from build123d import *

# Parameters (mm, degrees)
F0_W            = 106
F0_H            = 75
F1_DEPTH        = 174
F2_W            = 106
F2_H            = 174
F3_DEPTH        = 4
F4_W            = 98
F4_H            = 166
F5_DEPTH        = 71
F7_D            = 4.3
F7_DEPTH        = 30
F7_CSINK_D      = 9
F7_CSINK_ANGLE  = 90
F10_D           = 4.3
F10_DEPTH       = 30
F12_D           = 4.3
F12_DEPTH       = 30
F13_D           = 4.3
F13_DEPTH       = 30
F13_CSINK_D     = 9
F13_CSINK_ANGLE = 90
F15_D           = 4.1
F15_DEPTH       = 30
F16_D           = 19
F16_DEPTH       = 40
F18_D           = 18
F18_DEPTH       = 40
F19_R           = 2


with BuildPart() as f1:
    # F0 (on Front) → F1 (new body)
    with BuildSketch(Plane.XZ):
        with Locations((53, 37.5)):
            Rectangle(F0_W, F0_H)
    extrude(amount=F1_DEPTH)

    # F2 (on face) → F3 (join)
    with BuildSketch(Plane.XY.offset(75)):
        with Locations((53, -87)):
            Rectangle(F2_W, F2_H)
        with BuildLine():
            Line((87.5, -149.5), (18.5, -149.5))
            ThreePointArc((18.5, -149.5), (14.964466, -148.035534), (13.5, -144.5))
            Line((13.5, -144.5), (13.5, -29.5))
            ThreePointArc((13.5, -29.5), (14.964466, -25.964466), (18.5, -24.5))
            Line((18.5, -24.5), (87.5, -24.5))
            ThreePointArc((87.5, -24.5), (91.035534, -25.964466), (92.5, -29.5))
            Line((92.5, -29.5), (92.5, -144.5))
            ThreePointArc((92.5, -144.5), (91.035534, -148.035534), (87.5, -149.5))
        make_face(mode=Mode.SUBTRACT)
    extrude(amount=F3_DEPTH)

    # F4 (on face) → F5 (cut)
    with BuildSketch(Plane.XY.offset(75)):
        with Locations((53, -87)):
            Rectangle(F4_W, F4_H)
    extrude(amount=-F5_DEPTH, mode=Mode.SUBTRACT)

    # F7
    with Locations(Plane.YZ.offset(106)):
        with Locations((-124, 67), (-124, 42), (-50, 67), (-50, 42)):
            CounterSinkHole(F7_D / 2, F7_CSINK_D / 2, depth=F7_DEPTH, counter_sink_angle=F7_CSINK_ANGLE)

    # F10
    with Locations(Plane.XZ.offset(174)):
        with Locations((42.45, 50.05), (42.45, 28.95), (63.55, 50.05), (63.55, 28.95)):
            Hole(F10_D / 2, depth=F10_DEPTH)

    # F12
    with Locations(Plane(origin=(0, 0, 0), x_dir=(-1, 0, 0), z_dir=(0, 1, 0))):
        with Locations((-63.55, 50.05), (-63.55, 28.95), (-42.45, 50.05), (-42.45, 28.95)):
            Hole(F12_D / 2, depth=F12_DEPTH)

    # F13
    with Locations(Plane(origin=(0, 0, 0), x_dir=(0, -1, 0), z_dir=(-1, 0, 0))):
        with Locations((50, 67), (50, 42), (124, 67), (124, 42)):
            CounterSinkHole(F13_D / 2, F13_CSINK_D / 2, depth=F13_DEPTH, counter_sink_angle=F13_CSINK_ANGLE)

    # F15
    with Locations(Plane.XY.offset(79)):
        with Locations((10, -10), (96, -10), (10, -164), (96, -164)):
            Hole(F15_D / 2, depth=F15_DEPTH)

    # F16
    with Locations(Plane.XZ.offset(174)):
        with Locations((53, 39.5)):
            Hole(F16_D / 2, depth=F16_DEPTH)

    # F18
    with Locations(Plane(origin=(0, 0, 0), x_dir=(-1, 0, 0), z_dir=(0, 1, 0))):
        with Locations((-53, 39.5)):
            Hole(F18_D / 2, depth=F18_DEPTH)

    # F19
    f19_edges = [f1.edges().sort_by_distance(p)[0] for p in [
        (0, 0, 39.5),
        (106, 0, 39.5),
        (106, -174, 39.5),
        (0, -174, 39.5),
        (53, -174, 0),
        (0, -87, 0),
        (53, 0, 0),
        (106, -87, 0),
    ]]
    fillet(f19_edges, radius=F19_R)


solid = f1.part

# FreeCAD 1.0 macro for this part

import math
import FreeCAD as App
import Part
import Sketcher
Q = App.Units.Quantity


def edges_at(feature, points):
    """Names of the edges that pass closest to the given points."""
    edges = feature.Shape.Edges
    near = lambda p: min(range(len(edges)), key=lambda i: edges[i].distToShape(Part.Vertex(*p))[0])
    return sorted({f"Edge{near(p) + 1}" for p in points})


def add_polygon(sketch, points):
    """Adds a closed chain of lines whose ends are joined by coincident constraints."""
    first, n = sketch.GeometryCount, len(points)
    for a, b in zip(points, points[1:] + points[:1]):
        sketch.addGeometry(Part.LineSegment(App.Vector(*a, 0), App.Vector(*b, 0)), False)
    for i in range(n):
        sketch.addConstraint(Sketcher.Constraint("Coincident", first + i, 2, first + (i + 1) % n, 1))

doc = App.newDocument("Part")
params = doc.addObject("Spreadsheet::Sheet", "Params")
for row, (alias, value) in enumerate([
    ("sketch1_width", "106 mm"),
    ("sketch1_height", "75 mm"),
    ("pad1_length", "174 mm"),
    ("sketch2_radius", "5 mm"),
    ("sketch2_width", "106 mm"),
    ("sketch2_width2", "69 mm"),
    ("sketch2_height", "174 mm"),
    ("sketch2_height2", "115 mm"),
    ("pad2_length", "4 mm"),
    ("sketch3_width", "98 mm"),
    ("sketch3_height", "166 mm"),
    ("pocket1_length", "71 mm"),
    ("sketch4_diameter", "4.3 mm"),
    ("hole_diameter", "4.3 mm"),
    ("hole_depth", "30 mm"),
    ("hole_csink_diameter", "9 mm"),
    ("sketch5_diameter", "4.3 mm"),
    ("hole2_diameter", "4.3 mm"),
    ("hole2_depth", "30 mm"),
    ("sketch6_diameter", "4.3 mm"),
    ("hole3_diameter", "4.3 mm"),
    ("hole3_depth", "30 mm"),
    ("sketch7_diameter", "4.3 mm"),
    ("hole4_diameter", "4.3 mm"),
    ("hole4_depth", "30 mm"),
    ("hole4_csink_diameter", "9 mm"),
    ("sketch8_diameter", "4.1 mm"),
    ("hole5_diameter", "4.1 mm"),
    ("hole5_depth", "30 mm"),
    ("sketch9_diameter", "19 mm"),
    ("hole6_diameter", "19 mm"),
    ("hole6_depth", "40 mm"),
    ("sketch10_diameter", "18 mm"),
    ("hole7_diameter", "18 mm"),
    ("hole7_depth", "40 mm"),
    ("fillet_radius", "2 mm"),
], start=1):
    params.set(f"A{row}", alias)
    params.set(f"B{row}", "=" + value)
    params.setAlias(f"B{row}", alias)

body = doc.addObject("PartDesign::Body", "Body")

sketch1 = body.newObject("Sketcher::SketchObject", "Sketch")
sketch1.AttachmentSupport = (doc.getObject("XZ_Plane"), [""])
sketch1.MapMode = "FlatFace"
add_polygon(sketch1, [(0, 75), (0, 0), (106, 0), (106, 75)])
sketch1.addConstraint([
    Sketcher.Constraint("Vertical", 0),
    Sketcher.Constraint("Horizontal", 1),
    Sketcher.Constraint("Vertical", 2),
    Sketcher.Constraint("Horizontal", 3),
    Sketcher.Constraint("Coincident", 0, 2, -1, 1),
    Sketcher.Constraint("DistanceX", 1, 1, 1, 2, Q("106 mm")),
    Sketcher.Constraint("DistanceY", 0, 2, 0, 1, Q("75 mm")),
])
sketch1.setExpression("Constraints[9]", "Params.sketch1_width")
sketch1.setExpression("Constraints[10]", "Params.sketch1_height")
pad1 = body.newObject("PartDesign::Pad", "Pad")
pad1.Profile = sketch1
pad1.setExpression("Length", "Params.pad1_length")

sketch2 = body.newObject("Sketcher::SketchObject", "Sketch001")
sketch2.AttachmentSupport = (doc.getObject("XY_Plane"), [""])
sketch2.MapMode = "FlatFace"
sketch2.AttachmentOffset = App.Placement(App.Vector(0, 0, 75), App.Rotation())
add_polygon(sketch2, [(0, 0), (0, -174), (106, -174), (106, 0)])
sketch2.addGeometry(Part.ArcOfCircle(Part.Circle(App.Vector(87.5, -144.5, 0), App.Vector(0, 0, 1), 5), math.radians(-90), math.radians(0)), False)
sketch2.addGeometry(Part.LineSegment(App.Vector(87.5, -149.5, 0), App.Vector(18.5, -149.5, 0)), False)
sketch2.addGeometry(Part.ArcOfCircle(Part.Circle(App.Vector(18.5, -144.5, 0), App.Vector(0, 0, 1), 5), math.radians(180), math.radians(270)), False)
sketch2.addGeometry(Part.LineSegment(App.Vector(13.5, -144.5, 0), App.Vector(13.5, -29.5, 0)), False)
sketch2.addGeometry(Part.ArcOfCircle(Part.Circle(App.Vector(18.5, -29.5, 0), App.Vector(0, 0, 1), 5), math.radians(90), math.radians(180)), False)
sketch2.addGeometry(Part.LineSegment(App.Vector(18.5, -24.5, 0), App.Vector(87.5, -24.5, 0)), False)
sketch2.addGeometry(Part.ArcOfCircle(Part.Circle(App.Vector(87.5, -29.5, 0), App.Vector(0, 0, 1), 5), math.radians(0), math.radians(90)), False)
sketch2.addGeometry(Part.LineSegment(App.Vector(92.5, -29.5, 0), App.Vector(92.5, -144.5, 0)), False)
sketch2.addConstraint([
    Sketcher.Constraint("Tangent", 4, 1, 5, 1),
    Sketcher.Constraint("Tangent", 5, 2, 6, 2),
    Sketcher.Constraint("Tangent", 6, 1, 7, 1),
    Sketcher.Constraint("Tangent", 7, 2, 8, 2),
    Sketcher.Constraint("Tangent", 8, 1, 9, 1),
    Sketcher.Constraint("Tangent", 9, 2, 10, 2),
    Sketcher.Constraint("Tangent", 10, 1, 11, 1),
    Sketcher.Constraint("Tangent", 11, 2, 4, 2),
    Sketcher.Constraint("Vertical", 0),
    Sketcher.Constraint("Horizontal", 1),
    Sketcher.Constraint("Vertical", 2),
    Sketcher.Constraint("Horizontal", 3),
    Sketcher.Constraint("Horizontal", 5),
    Sketcher.Constraint("Vertical", 7),
    Sketcher.Constraint("Horizontal", 9),
    Sketcher.Constraint("Vertical", 11),
    Sketcher.Constraint("Coincident", 3, 2, -1, 1),
    Sketcher.Constraint("Equal", 4, 6),
    Sketcher.Constraint("Equal", 6, 8),
    Sketcher.Constraint("Equal", 8, 10),
    Sketcher.Constraint("Radius", 4, Q("5 mm")),
    Sketcher.Constraint("DistanceX", 1, 1, 1, 2, Q("106 mm")),
    Sketcher.Constraint("DistanceX", 5, 2, 5, 1, Q("69 mm")),
    Sketcher.Constraint("DistanceY", 0, 2, 0, 1, Q("174 mm")),
    Sketcher.Constraint("DistanceY", 7, 1, 7, 2, Q("115 mm")),
    Sketcher.Constraint("DistanceX", -1, 1, 4, 3, Q("87.5 mm")),
    Sketcher.Constraint("DistanceY", 4, 3, -1, 1, Q("144.5 mm")),
])
sketch2.setExpression("Constraints[24]", "Params.sketch2_radius")
sketch2.setExpression("Constraints[25]", "Params.sketch2_width")
sketch2.setExpression("Constraints[26]", "Params.sketch2_width2")
sketch2.setExpression("Constraints[27]", "Params.sketch2_height")
sketch2.setExpression("Constraints[28]", "Params.sketch2_height2")
pad2 = body.newObject("PartDesign::Pad", "Pad001")
pad2.Profile = sketch2
pad2.setExpression("Length", "Params.pad2_length")

sketch3 = body.newObject("Sketcher::SketchObject", "Sketch002")
sketch3.AttachmentSupport = (doc.getObject("XY_Plane"), [""])
sketch3.MapMode = "FlatFace"
sketch3.AttachmentOffset = App.Placement(App.Vector(0, 0, 75), App.Rotation())
add_polygon(sketch3, [(4, -4), (4, -170), (102, -170), (102, -4)])
sketch3.addConstraint([
    Sketcher.Constraint("Vertical", 0),
    Sketcher.Constraint("Horizontal", 1),
    Sketcher.Constraint("Vertical", 2),
    Sketcher.Constraint("Horizontal", 3),
    Sketcher.Constraint("DistanceX", 1, 1, 1, 2, Q("98 mm")),
    Sketcher.Constraint("DistanceY", 0, 2, 0, 1, Q("166 mm")),
    Sketcher.Constraint("DistanceX", -1, 1, 0, 2, Q("4 mm")),
    Sketcher.Constraint("DistanceY", 0, 2, -1, 1, Q("170 mm")),
])
sketch3.setExpression("Constraints[8]", "Params.sketch3_width")
sketch3.setExpression("Constraints[9]", "Params.sketch3_height")
pocket1 = body.newObject("PartDesign::Pocket", "Pocket")
pocket1.Profile = sketch3
pocket1.setExpression("Length", "Params.pocket1_length")

sketch4 = body.newObject("Sketcher::SketchObject", "Sketch003")
sketch4.AttachmentSupport = (doc.getObject("YZ_Plane"), [""])
sketch4.MapMode = "FlatFace"
sketch4.AttachmentOffset = App.Placement(App.Vector(0, 0, 106), App.Rotation())
sketch4.addGeometry([
    Part.Circle(App.Vector(-124, 67, 0), App.Vector(0, 0, 1), 2.1),
    Part.Circle(App.Vector(-124, 42, 0), App.Vector(0, 0, 1), 2.1),
    Part.Circle(App.Vector(-50, 67, 0), App.Vector(0, 0, 1), 2.1),
    Part.Circle(App.Vector(-50, 42, 0), App.Vector(0, 0, 1), 2.1),
], False)
sketch4.addConstraint([
    Sketcher.Constraint("Equal", 0, 1),
    Sketcher.Constraint("Equal", 1, 2),
    Sketcher.Constraint("Equal", 2, 3),
    Sketcher.Constraint("Horizontal", 0, 3, 2, 3),
    Sketcher.Constraint("Horizontal", 1, 3, 3, 3),
    Sketcher.Constraint("Vertical", 0, 3, 1, 3),
    Sketcher.Constraint("Vertical", 2, 3, 3, 3),
    Sketcher.Constraint("Diameter", 0, Q("4.3 mm")),
    Sketcher.Constraint("DistanceX", 0, 3, -1, 1, Q("124 mm")),
    Sketcher.Constraint("DistanceY", -1, 1, 0, 3, Q("67 mm")),
    Sketcher.Constraint("DistanceY", -1, 1, 1, 3, Q("42 mm")),
    Sketcher.Constraint("DistanceX", 2, 3, -1, 1, Q("50 mm")),
])
sketch4.setExpression("Constraints[7]", "Params.sketch4_diameter")
doc.recompute()
hole = body.newObject("PartDesign::Hole", "Hole")
hole.Profile = sketch4
hole.ThreadType = "None"
hole.setExpression("Diameter", "Params.hole_diameter")
hole.DepthType = "Dimension"
hole.setExpression("Depth", "Params.hole_depth")
hole.DrillPoint = "Flat"
hole.HoleCutType = "Countersink"
hole.setExpression("HoleCutDiameter", "Params.hole_csink_diameter")
hole.HoleCutCountersinkAngle = 90

sketch5 = body.newObject("Sketcher::SketchObject", "Sketch004")
sketch5.AttachmentSupport = (doc.getObject("XZ_Plane"), [""])
sketch5.MapMode = "FlatFace"
sketch5.AttachmentOffset = App.Placement(App.Vector(0, 0, 174), App.Rotation())
sketch5.addGeometry([
    Part.Circle(App.Vector(42.5, 50, 0), App.Vector(0, 0, 1), 2.1),
    Part.Circle(App.Vector(42.5, 28.9, 0), App.Vector(0, 0, 1), 2.1),
    Part.Circle(App.Vector(63.5, 50, 0), App.Vector(0, 0, 1), 2.1),
    Part.Circle(App.Vector(63.5, 28.9, 0), App.Vector(0, 0, 1), 2.1),
], False)
sketch5.addConstraint([
    Sketcher.Constraint("Equal", 0, 1),
    Sketcher.Constraint("Equal", 1, 2),
    Sketcher.Constraint("Equal", 2, 3),
    Sketcher.Constraint("Horizontal", 0, 3, 2, 3),
    Sketcher.Constraint("Horizontal", 1, 3, 3, 3),
    Sketcher.Constraint("Vertical", 0, 3, 1, 3),
    Sketcher.Constraint("Vertical", 2, 3, 3, 3),
    Sketcher.Constraint("Diameter", 0, Q("4.3 mm")),
    Sketcher.Constraint("DistanceY", 1, 3, 0, 3, Q("21.1 mm")),
    Sketcher.Constraint("DistanceX", 0, 3, 2, 3, Q("21.1 mm")),
    Sketcher.Constraint("DistanceX", -1, 1, 0, 3, Q("42.45 mm")),
    Sketcher.Constraint("DistanceY", -1, 1, 0, 3, Q("50.05 mm")),
])
sketch5.setExpression("Constraints[7]", "Params.sketch5_diameter")
doc.recompute()
hole2 = body.newObject("PartDesign::Hole", "Hole001")
hole2.Profile = sketch5
hole2.ThreadType = "None"
hole2.setExpression("Diameter", "Params.hole2_diameter")
hole2.DepthType = "Dimension"
hole2.setExpression("Depth", "Params.hole2_depth")
hole2.DrillPoint = "Flat"

sketch6 = body.newObject("Sketcher::SketchObject", "Sketch005")
sketch6.AttachmentSupport = (doc.getObject("XZ_Plane"), [""])
sketch6.MapMode = "FlatFace"
sketch6.addGeometry([
    Part.Circle(App.Vector(63.5, 50, 0), App.Vector(0, 0, 1), 2.1),
    Part.Circle(App.Vector(63.5, 28.9, 0), App.Vector(0, 0, 1), 2.1),
    Part.Circle(App.Vector(42.5, 50, 0), App.Vector(0, 0, 1), 2.1),
    Part.Circle(App.Vector(42.5, 28.9, 0), App.Vector(0, 0, 1), 2.1),
], False)
sketch6.addConstraint([
    Sketcher.Constraint("Equal", 0, 1),
    Sketcher.Constraint("Equal", 1, 2),
    Sketcher.Constraint("Equal", 2, 3),
    Sketcher.Constraint("Horizontal", 0, 3, 2, 3),
    Sketcher.Constraint("Horizontal", 1, 3, 3, 3),
    Sketcher.Constraint("Vertical", 0, 3, 1, 3),
    Sketcher.Constraint("Vertical", 2, 3, 3, 3),
    Sketcher.Constraint("Diameter", 0, Q("4.3 mm")),
    Sketcher.Constraint("DistanceY", 1, 3, 0, 3, Q("21.1 mm")),
    Sketcher.Constraint("DistanceX", 2, 3, 0, 3, Q("21.1 mm")),
    Sketcher.Constraint("DistanceX", -1, 1, 0, 3, Q("63.55 mm")),
    Sketcher.Constraint("DistanceY", -1, 1, 0, 3, Q("50.05 mm")),
])
sketch6.setExpression("Constraints[7]", "Params.sketch6_diameter")
doc.recompute()
hole3 = body.newObject("PartDesign::Hole", "Hole002")
hole3.Profile = sketch6
hole3.ThreadType = "None"
hole3.setExpression("Diameter", "Params.hole3_diameter")
hole3.DepthType = "Dimension"
hole3.setExpression("Depth", "Params.hole3_depth")
hole3.DrillPoint = "Flat"
hole3.Reversed = True

sketch7 = body.newObject("Sketcher::SketchObject", "Sketch006")
sketch7.AttachmentSupport = (doc.getObject("YZ_Plane"), [""])
sketch7.MapMode = "FlatFace"
sketch7.addGeometry([
    Part.Circle(App.Vector(-50, 67, 0), App.Vector(0, 0, 1), 2.1),
    Part.Circle(App.Vector(-50, 42, 0), App.Vector(0, 0, 1), 2.1),
    Part.Circle(App.Vector(-124, 67, 0), App.Vector(0, 0, 1), 2.1),
    Part.Circle(App.Vector(-124, 42, 0), App.Vector(0, 0, 1), 2.1),
], False)
sketch7.addConstraint([
    Sketcher.Constraint("Equal", 0, 1),
    Sketcher.Constraint("Equal", 1, 2),
    Sketcher.Constraint("Equal", 2, 3),
    Sketcher.Constraint("Horizontal", 0, 3, 2, 3),
    Sketcher.Constraint("Horizontal", 1, 3, 3, 3),
    Sketcher.Constraint("Vertical", 0, 3, 1, 3),
    Sketcher.Constraint("Vertical", 2, 3, 3, 3),
    Sketcher.Constraint("Diameter", 0, Q("4.3 mm")),
    Sketcher.Constraint("DistanceX", 0, 3, -1, 1, Q("50 mm")),
    Sketcher.Constraint("DistanceY", -1, 1, 0, 3, Q("67 mm")),
    Sketcher.Constraint("DistanceY", -1, 1, 1, 3, Q("42 mm")),
    Sketcher.Constraint("DistanceX", 2, 3, -1, 1, Q("124 mm")),
])
sketch7.setExpression("Constraints[7]", "Params.sketch7_diameter")
doc.recompute()
hole4 = body.newObject("PartDesign::Hole", "Hole003")
hole4.Profile = sketch7
hole4.ThreadType = "None"
hole4.setExpression("Diameter", "Params.hole4_diameter")
hole4.DepthType = "Dimension"
hole4.setExpression("Depth", "Params.hole4_depth")
hole4.DrillPoint = "Flat"
hole4.HoleCutType = "Countersink"
hole4.setExpression("HoleCutDiameter", "Params.hole4_csink_diameter")
hole4.HoleCutCountersinkAngle = 90
hole4.Reversed = True

sketch8 = body.newObject("Sketcher::SketchObject", "Sketch007")
sketch8.AttachmentSupport = (doc.getObject("XY_Plane"), [""])
sketch8.MapMode = "FlatFace"
sketch8.AttachmentOffset = App.Placement(App.Vector(0, 0, 79), App.Rotation())
sketch8.addGeometry([
    Part.Circle(App.Vector(10, -10, 0), App.Vector(0, 0, 1), 2),
    Part.Circle(App.Vector(96, -10, 0), App.Vector(0, 0, 1), 2),
    Part.Circle(App.Vector(10, -164, 0), App.Vector(0, 0, 1), 2),
    Part.Circle(App.Vector(96, -164, 0), App.Vector(0, 0, 1), 2),
], False)
sketch8.addConstraint([
    Sketcher.Constraint("Equal", 0, 1),
    Sketcher.Constraint("Equal", 1, 2),
    Sketcher.Constraint("Equal", 2, 3),
    Sketcher.Constraint("Horizontal", 0, 3, 1, 3),
    Sketcher.Constraint("Horizontal", 2, 3, 3, 3),
    Sketcher.Constraint("Vertical", 0, 3, 2, 3),
    Sketcher.Constraint("Vertical", 1, 3, 3, 3),
    Sketcher.Constraint("Diameter", 0, Q("4.1 mm")),
    Sketcher.Constraint("DistanceX", -1, 1, 0, 3, Q("10 mm")),
    Sketcher.Constraint("DistanceY", 0, 3, -1, 1, Q("10 mm")),
    Sketcher.Constraint("DistanceX", -1, 1, 1, 3, Q("96 mm")),
    Sketcher.Constraint("DistanceY", 2, 3, -1, 1, Q("164 mm")),
])
sketch8.setExpression("Constraints[7]", "Params.sketch8_diameter")
doc.recompute()
hole5 = body.newObject("PartDesign::Hole", "Hole004")
hole5.Profile = sketch8
hole5.ThreadType = "None"
hole5.setExpression("Diameter", "Params.hole5_diameter")
hole5.DepthType = "Dimension"
hole5.setExpression("Depth", "Params.hole5_depth")
hole5.DrillPoint = "Flat"

sketch9 = body.newObject("Sketcher::SketchObject", "Sketch008")
sketch9.AttachmentSupport = (doc.getObject("XZ_Plane"), [""])
sketch9.MapMode = "FlatFace"
sketch9.AttachmentOffset = App.Placement(App.Vector(0, 0, 174), App.Rotation())
sketch9.addGeometry(Part.Circle(App.Vector(53, 40, 0), App.Vector(0, 0, 1), 10), False)
sketch9.addConstraint([
    Sketcher.Constraint("Diameter", 0, Q("19 mm")),
    Sketcher.Constraint("DistanceX", -1, 1, 0, 3, Q("53 mm")),
    Sketcher.Constraint("DistanceY", -1, 1, 0, 3, Q("39.5 mm")),
])
sketch9.setExpression("Constraints[0]", "Params.sketch9_diameter")
doc.recompute()
hole6 = body.newObject("PartDesign::Hole", "Hole005")
hole6.Profile = sketch9
hole6.ThreadType = "None"
hole6.setExpression("Diameter", "Params.hole6_diameter")
hole6.DepthType = "Dimension"
hole6.setExpression("Depth", "Params.hole6_depth")
hole6.DrillPoint = "Flat"

sketch10 = body.newObject("Sketcher::SketchObject", "Sketch009")
sketch10.AttachmentSupport = (doc.getObject("XZ_Plane"), [""])
sketch10.MapMode = "FlatFace"
sketch10.addGeometry(Part.Circle(App.Vector(53, 40, 0), App.Vector(0, 0, 1), 9), False)
sketch10.addConstraint([
    Sketcher.Constraint("Diameter", 0, Q("18 mm")),
    Sketcher.Constraint("DistanceX", -1, 1, 0, 3, Q("53 mm")),
    Sketcher.Constraint("DistanceY", -1, 1, 0, 3, Q("39.5 mm")),
])
sketch10.setExpression("Constraints[0]", "Params.sketch10_diameter")
doc.recompute()
hole7 = body.newObject("PartDesign::Hole", "Hole006")
hole7.Profile = sketch10
hole7.ThreadType = "None"
hole7.setExpression("Diameter", "Params.hole7_diameter")
hole7.DepthType = "Dimension"
hole7.setExpression("Depth", "Params.hole7_depth")
hole7.DrillPoint = "Flat"
hole7.Reversed = True
doc.recompute()

fillet = body.newObject("PartDesign::Fillet", "Fillet")
fillet.Base = (hole7, edges_at(hole7, [
    (0, 0, 39.5),
    (106, 0, 39.5),
    (106, -174, 39.5),
    (0, -174, 39.5),
    (53, -174, 0),
    (0, -87, 0),
    (53, 0, 0),
    (106, -87, 0),
]))
fillet.setExpression("Radius", "Params.fillet_radius")

doc.recompute()
